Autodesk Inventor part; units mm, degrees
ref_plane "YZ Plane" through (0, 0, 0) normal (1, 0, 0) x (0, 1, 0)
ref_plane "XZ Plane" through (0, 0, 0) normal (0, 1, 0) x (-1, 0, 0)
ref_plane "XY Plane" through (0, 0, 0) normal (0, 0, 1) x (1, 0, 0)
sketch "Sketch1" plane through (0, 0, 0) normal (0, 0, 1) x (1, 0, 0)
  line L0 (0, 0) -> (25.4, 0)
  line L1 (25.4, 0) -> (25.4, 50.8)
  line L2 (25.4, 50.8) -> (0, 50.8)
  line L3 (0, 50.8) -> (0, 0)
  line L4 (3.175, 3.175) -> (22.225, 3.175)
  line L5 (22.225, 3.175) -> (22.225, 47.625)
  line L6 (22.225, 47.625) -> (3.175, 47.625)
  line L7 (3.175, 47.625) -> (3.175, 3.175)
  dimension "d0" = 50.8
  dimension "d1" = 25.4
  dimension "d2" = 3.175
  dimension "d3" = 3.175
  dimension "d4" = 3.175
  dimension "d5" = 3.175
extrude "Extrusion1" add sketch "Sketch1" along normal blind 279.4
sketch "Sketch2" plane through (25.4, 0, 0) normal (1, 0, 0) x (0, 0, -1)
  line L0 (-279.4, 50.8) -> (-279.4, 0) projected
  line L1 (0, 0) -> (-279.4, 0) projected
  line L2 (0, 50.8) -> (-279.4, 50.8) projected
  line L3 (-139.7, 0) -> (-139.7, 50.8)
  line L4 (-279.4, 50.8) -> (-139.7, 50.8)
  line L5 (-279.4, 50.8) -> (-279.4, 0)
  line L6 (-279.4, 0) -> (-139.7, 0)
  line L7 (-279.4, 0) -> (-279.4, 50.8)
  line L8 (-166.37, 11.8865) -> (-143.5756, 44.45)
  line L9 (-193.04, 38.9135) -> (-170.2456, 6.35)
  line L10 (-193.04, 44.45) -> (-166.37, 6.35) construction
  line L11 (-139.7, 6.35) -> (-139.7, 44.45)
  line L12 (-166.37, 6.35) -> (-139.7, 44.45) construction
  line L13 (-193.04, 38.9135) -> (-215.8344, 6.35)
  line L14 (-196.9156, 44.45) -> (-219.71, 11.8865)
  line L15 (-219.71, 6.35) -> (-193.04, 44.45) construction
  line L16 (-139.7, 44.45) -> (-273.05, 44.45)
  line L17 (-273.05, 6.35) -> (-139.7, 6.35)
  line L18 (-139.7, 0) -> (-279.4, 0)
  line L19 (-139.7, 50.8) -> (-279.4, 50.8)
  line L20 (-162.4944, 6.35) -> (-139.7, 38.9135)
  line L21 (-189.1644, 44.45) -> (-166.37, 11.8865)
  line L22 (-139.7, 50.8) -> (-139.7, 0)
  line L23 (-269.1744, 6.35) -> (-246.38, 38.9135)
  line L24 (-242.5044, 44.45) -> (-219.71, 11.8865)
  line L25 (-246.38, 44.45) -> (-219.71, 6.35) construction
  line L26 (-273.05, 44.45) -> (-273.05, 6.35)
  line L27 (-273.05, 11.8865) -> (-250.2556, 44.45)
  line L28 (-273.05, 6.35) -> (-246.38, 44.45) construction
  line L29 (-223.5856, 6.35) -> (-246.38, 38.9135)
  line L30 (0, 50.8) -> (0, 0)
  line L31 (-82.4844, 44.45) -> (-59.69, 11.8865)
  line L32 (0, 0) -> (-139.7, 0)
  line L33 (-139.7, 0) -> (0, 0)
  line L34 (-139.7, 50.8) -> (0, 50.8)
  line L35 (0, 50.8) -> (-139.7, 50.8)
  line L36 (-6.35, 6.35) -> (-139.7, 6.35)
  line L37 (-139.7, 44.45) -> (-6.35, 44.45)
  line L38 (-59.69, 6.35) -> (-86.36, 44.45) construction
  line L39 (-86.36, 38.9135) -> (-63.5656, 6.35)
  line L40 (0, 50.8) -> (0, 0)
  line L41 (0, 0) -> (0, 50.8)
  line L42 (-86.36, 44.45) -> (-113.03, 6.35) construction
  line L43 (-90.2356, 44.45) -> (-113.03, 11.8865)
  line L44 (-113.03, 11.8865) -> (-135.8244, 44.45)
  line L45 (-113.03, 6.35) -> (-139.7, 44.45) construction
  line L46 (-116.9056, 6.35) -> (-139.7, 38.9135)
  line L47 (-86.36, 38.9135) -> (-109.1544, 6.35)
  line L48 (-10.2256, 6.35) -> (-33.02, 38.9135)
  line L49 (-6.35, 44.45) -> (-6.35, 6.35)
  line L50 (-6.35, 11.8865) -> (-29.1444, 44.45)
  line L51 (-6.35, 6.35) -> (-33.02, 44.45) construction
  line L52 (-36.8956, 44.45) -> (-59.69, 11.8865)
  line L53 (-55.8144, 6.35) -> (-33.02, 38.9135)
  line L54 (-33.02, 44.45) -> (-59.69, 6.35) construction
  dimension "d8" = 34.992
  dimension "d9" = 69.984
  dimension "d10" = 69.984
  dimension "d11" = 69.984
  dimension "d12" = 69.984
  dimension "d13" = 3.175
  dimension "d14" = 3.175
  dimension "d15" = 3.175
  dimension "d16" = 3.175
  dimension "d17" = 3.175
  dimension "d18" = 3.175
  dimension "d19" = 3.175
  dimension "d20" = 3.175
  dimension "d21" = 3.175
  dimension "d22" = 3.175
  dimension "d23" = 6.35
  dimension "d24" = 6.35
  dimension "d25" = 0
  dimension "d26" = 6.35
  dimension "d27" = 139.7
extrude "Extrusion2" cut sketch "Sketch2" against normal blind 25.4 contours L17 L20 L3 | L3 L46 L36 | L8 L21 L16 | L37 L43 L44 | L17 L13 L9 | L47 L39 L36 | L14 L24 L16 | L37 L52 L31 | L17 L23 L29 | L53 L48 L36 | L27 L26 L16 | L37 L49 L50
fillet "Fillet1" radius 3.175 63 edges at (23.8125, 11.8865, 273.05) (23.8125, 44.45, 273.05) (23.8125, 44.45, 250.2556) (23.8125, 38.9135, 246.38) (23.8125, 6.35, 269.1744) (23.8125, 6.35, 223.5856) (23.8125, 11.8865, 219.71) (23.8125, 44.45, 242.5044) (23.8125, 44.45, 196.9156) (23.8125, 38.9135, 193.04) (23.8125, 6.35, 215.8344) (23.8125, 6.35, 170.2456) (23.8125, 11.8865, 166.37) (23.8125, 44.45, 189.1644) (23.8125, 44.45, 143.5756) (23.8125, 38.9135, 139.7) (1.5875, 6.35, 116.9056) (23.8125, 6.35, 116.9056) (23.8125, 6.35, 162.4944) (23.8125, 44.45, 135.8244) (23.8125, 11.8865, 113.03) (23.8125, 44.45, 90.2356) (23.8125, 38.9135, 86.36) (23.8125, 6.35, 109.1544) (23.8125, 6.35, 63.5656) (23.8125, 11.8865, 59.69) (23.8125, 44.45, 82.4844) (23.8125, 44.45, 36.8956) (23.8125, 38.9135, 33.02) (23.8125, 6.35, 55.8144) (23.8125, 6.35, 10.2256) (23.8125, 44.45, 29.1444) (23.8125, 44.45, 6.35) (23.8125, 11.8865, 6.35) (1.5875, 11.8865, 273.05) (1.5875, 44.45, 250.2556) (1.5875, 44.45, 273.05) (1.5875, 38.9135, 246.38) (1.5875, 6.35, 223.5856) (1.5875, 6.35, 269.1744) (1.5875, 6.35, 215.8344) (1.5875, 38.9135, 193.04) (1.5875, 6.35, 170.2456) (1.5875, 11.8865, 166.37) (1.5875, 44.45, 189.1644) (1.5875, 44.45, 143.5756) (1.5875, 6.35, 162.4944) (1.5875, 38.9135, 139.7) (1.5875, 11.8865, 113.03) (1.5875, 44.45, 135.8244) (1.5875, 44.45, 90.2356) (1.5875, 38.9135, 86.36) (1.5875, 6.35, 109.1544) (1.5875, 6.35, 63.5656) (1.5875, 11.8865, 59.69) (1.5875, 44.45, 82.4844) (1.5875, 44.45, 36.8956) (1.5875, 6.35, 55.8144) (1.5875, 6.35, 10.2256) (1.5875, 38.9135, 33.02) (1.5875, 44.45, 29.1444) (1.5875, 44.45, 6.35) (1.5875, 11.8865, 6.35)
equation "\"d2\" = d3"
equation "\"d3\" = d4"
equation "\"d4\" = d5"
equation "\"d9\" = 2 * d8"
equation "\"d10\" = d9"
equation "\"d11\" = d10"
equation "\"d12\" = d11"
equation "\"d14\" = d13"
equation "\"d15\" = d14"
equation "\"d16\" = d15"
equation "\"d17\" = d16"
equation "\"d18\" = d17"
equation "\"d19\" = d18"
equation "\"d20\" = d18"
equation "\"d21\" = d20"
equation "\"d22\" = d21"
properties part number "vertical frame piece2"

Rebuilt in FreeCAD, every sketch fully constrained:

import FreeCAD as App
import Part
import Sketcher
Q = App.Units.Quantity


def edges_at(feature, points):
    """Names of the edges that pass closest to the given points."""
    edges = feature.Shape.Edges
    near = lambda p: min(range(len(edges)), key=lambda i: edges[i].distToShape(Part.Vertex(*p))[0])
    return sorted({f"Edge{near(p) + 1}" for p in points})

doc = App.newDocument("Part")
body = doc.addObject("PartDesign::Body", "Body")

# Sketch on XY plane
sketch1 = body.newObject("Sketcher::SketchObject", "Sketch")
sketch1.AttachmentSupport = (doc.getObject("XY_Plane"), [""])
sketch1.MapMode = "FlatFace"
sketch1.addGeometry([
    Part.LineSegment(App.Vector(0, 51, 0), App.Vector(0, 0, 0)),  # 0
    Part.LineSegment(App.Vector(0, 0, 0), App.Vector(25, 0, 0)),  # 1
    Part.LineSegment(App.Vector(25, 0, 0), App.Vector(25, 51, 0)),  # 2
    Part.LineSegment(App.Vector(25, 51, 0), App.Vector(0, 51, 0)),  # 3
    Part.LineSegment(App.Vector(22, 3, 0), App.Vector(3, 3, 0)),  # 4
    Part.LineSegment(App.Vector(3, 3, 0), App.Vector(3, 48, 0)),  # 5
    Part.LineSegment(App.Vector(3, 48, 0), App.Vector(22, 48, 0)),  # 6
    Part.LineSegment(App.Vector(22, 48, 0), App.Vector(22, 3, 0)),  # 7
], False)
sketch1.addConstraint([
    Sketcher.Constraint("Coincident", 0, 2, 1, 1),
    Sketcher.Constraint("Coincident", 1, 2, 2, 1),
    Sketcher.Constraint("Coincident", 2, 2, 3, 1),
    Sketcher.Constraint("Coincident", 3, 2, 0, 1),
    Sketcher.Constraint("Coincident", 4, 2, 5, 1),
    Sketcher.Constraint("Coincident", 5, 2, 6, 1),
    Sketcher.Constraint("Coincident", 6, 2, 7, 1),
    Sketcher.Constraint("Coincident", 7, 2, 4, 1),
    Sketcher.Constraint("Vertical", 0),
    Sketcher.Constraint("Horizontal", 1),
    Sketcher.Constraint("Vertical", 2),
    Sketcher.Constraint("Horizontal", 3),
    Sketcher.Constraint("Horizontal", 4),
    Sketcher.Constraint("Vertical", 5),
    Sketcher.Constraint("Horizontal", 6),
    Sketcher.Constraint("Vertical", 7),
    Sketcher.Constraint("Coincident", 0, 2, -1, 1),
    Sketcher.Constraint("DistanceX", 1, 1, 1, 2, Q("1 in")),
    Sketcher.Constraint("DistanceY", 0, 2, 0, 1, Q("2 in")),
    Sketcher.Constraint("DistanceX", -1, 1, 4, 2, Q("0.125 in")),
    Sketcher.Constraint("DistanceY", -1, 1, 4, 2, Q("0.125 in")),
    Sketcher.Constraint("DistanceY", 5, 2, 3, 2, Q("0.125 in")),
    Sketcher.Constraint("DistanceX", 6, 2, 2, 2, Q("0.125 in")),
])
pad1 = body.newObject("PartDesign::Pad", "Pad")
pad1.Profile = sketch1
pad1.Length = Q("11 in")

# Sketch on YZ plane
sketch2 = body.newObject("Sketcher::SketchObject", "Sketch001")
sketch2.AttachmentSupport = (doc.getObject("YZ_Plane"), [""])
sketch2.MapMode = "FlatFace"
sketch2.AttachmentOffset = App.Placement(App.Vector(0, 0, 1 * 25.4), App.Rotation())
sketch2.addGeometry([
    Part.LineSegment(App.Vector(6, 162, 0), App.Vector(6, 117, 0)),  # 0
    Part.LineSegment(App.Vector(6, 117, 0), App.Vector(39, 140, 0)),  # 1
    Part.LineSegment(App.Vector(39, 140, 0), App.Vector(6, 162, 0)),  # 2
    Part.LineSegment(App.Vector(12, 166, 0), App.Vector(44, 144, 0)),  # 3
    Part.LineSegment(App.Vector(44, 144, 0), App.Vector(44, 189, 0)),  # 4
    Part.LineSegment(App.Vector(44, 189, 0), App.Vector(12, 166, 0)),  # 5
    Part.LineSegment(App.Vector(44, 90, 0), App.Vector(44, 136, 0)),  # 6
    Part.LineSegment(App.Vector(44, 136, 0), App.Vector(12, 113, 0)),  # 7
    Part.LineSegment(App.Vector(12, 113, 0), App.Vector(44, 90, 0)),  # 8
    Part.LineSegment(App.Vector(6, 216, 0), App.Vector(6, 170, 0)),  # 9
    Part.LineSegment(App.Vector(6, 170, 0), App.Vector(39, 193, 0)),  # 10
    Part.LineSegment(App.Vector(39, 193, 0), App.Vector(6, 216, 0)),  # 11
    Part.LineSegment(App.Vector(39, 86, 0), App.Vector(6, 109, 0)),  # 12
    Part.LineSegment(App.Vector(6, 109, 0), App.Vector(6, 64, 0)),  # 13
    Part.LineSegment(App.Vector(6, 64, 0), App.Vector(39, 86, 0)),  # 14
    Part.LineSegment(App.Vector(12, 220, 0), App.Vector(44, 197, 0)),  # 15
    Part.LineSegment(App.Vector(44, 197, 0), App.Vector(44, 243, 0)),  # 16
    Part.LineSegment(App.Vector(44, 243, 0), App.Vector(12, 220, 0)),  # 17
    Part.LineSegment(App.Vector(44, 37, 0), App.Vector(44, 82, 0)),  # 18
    Part.LineSegment(App.Vector(44, 82, 0), App.Vector(12, 60, 0)),  # 19
    Part.LineSegment(App.Vector(12, 60, 0), App.Vector(44, 37, 0)),  # 20
    Part.LineSegment(App.Vector(6, 269, 0), App.Vector(6, 224, 0)),  # 21
    Part.LineSegment(App.Vector(6, 224, 0), App.Vector(39, 246, 0)),  # 22
    Part.LineSegment(App.Vector(39, 246, 0), App.Vector(6, 269, 0)),  # 23
    Part.LineSegment(App.Vector(39, 33, 0), App.Vector(6, 56, 0)),  # 24
    Part.LineSegment(App.Vector(6, 56, 0), App.Vector(6, 10, 0)),  # 25
    Part.LineSegment(App.Vector(6, 10, 0), App.Vector(39, 33, 0)),  # 26
    Part.LineSegment(App.Vector(12, 273, 0), App.Vector(44, 250, 0)),  # 27
    Part.LineSegment(App.Vector(44, 250, 0), App.Vector(44, 273, 0)),  # 28
    Part.LineSegment(App.Vector(44, 273, 0), App.Vector(12, 273, 0)),  # 29
    Part.LineSegment(App.Vector(44, 6, 0), App.Vector(44, 29, 0)),  # 30
    Part.LineSegment(App.Vector(44, 29, 0), App.Vector(12, 6, 0)),  # 31
    Part.LineSegment(App.Vector(12, 6, 0), App.Vector(44, 6, 0)),  # 32
], False)
sketch2.addConstraint([
    Sketcher.Constraint("Coincident", 0, 2, 1, 1),
    Sketcher.Constraint("Coincident", 1, 2, 2, 1),
    Sketcher.Constraint("Coincident", 2, 2, 0, 1),
    Sketcher.Constraint("Coincident", 3, 2, 4, 1),
    Sketcher.Constraint("Coincident", 4, 2, 5, 1),
    Sketcher.Constraint("Coincident", 5, 2, 3, 1),
    Sketcher.Constraint("Coincident", 6, 2, 7, 1),
    Sketcher.Constraint("Coincident", 7, 2, 8, 1),
    Sketcher.Constraint("Coincident", 8, 2, 6, 1),
    Sketcher.Constraint("Coincident", 9, 2, 10, 1),
    Sketcher.Constraint("Coincident", 10, 2, 11, 1),
    Sketcher.Constraint("Coincident", 11, 2, 9, 1),
    Sketcher.Constraint("Coincident", 12, 2, 13, 1),
    Sketcher.Constraint("Coincident", 13, 2, 14, 1),
    Sketcher.Constraint("Coincident", 14, 2, 12, 1),
    Sketcher.Constraint("Coincident", 15, 2, 16, 1),
    Sketcher.Constraint("Coincident", 16, 2, 17, 1),
    Sketcher.Constraint("Coincident", 17, 2, 15, 1),
    Sketcher.Constraint("Coincident", 18, 2, 19, 1),
    Sketcher.Constraint("Coincident", 19, 2, 20, 1),
    Sketcher.Constraint("Coincident", 20, 2, 18, 1),
    Sketcher.Constraint("Coincident", 21, 2, 22, 1),
    Sketcher.Constraint("Coincident", 22, 2, 23, 1),
    Sketcher.Constraint("Coincident", 23, 2, 21, 1),
    Sketcher.Constraint("Coincident", 24, 2, 25, 1),
    Sketcher.Constraint("Coincident", 25, 2, 26, 1),
    Sketcher.Constraint("Coincident", 26, 2, 24, 1),
    Sketcher.Constraint("Coincident", 27, 2, 28, 1),
    Sketcher.Constraint("Coincident", 28, 2, 29, 1),
    Sketcher.Constraint("Coincident", 29, 2, 27, 1),
    Sketcher.Constraint("Coincident", 30, 2, 31, 1),
    Sketcher.Constraint("Coincident", 31, 2, 32, 1),
    Sketcher.Constraint("Coincident", 32, 2, 30, 1),
    Sketcher.Constraint("Vertical", 0),
    Sketcher.Constraint("Vertical", 4),
    Sketcher.Constraint("Vertical", 6),
    Sketcher.Constraint("Vertical", 9),
    Sketcher.Constraint("Vertical", 13),
    Sketcher.Constraint("Vertical", 16),
    Sketcher.Constraint("Vertical", 18),
    Sketcher.Constraint("Vertical", 21),
    Sketcher.Constraint("Vertical", 25),
    Sketcher.Constraint("Vertical", 28),
    Sketcher.Constraint("Horizontal", 29),
    Sketcher.Constraint("Vertical", 30),
    Sketcher.Constraint("Horizontal", 32),
    Sketcher.Constraint("Parallel", 2, 3),
    Sketcher.Constraint("Parallel", 1, 5),
    Sketcher.Constraint("Parallel", 5, 7),
    Sketcher.Constraint("Parallel", 3, 8),
    Sketcher.Constraint("Parallel", 7, 10),
    Sketcher.Constraint("Parallel", 8, 11),
    Sketcher.Constraint("Parallel", 11, 12),
    Sketcher.Constraint("Parallel", 10, 14),
    Sketcher.Constraint("Parallel", 12, 15),
    Sketcher.Constraint("Parallel", 14, 17),
    Sketcher.Constraint("Parallel", 17, 19),
    Sketcher.Constraint("Parallel", 15, 20),
    Sketcher.Constraint("Parallel", 19, 22),
    Sketcher.Constraint("Parallel", 20, 23),
    Sketcher.Constraint("Parallel", 23, 24),
    Sketcher.Constraint("Parallel", 22, 26),
    Sketcher.Constraint("Parallel", 24, 27),
    Sketcher.Constraint("Parallel", 26, 31),
    Sketcher.Constraint("Vertical", 4, 2, 6, 2),
    Sketcher.Constraint("Vertical", 5, 2, 7, 2),
    Sketcher.Constraint("Vertical", 2, 2, 9, 2),
    Sketcher.Constraint("Vertical", 1, 2, 10, 2),
    Sketcher.Constraint("Vertical", 11, 2, 12, 2),
    Sketcher.Constraint("Vertical", 10, 2, 14, 2),
    Sketcher.Constraint("Vertical", 8, 2, 15, 2),
    Sketcher.Constraint("Vertical", 7, 2, 17, 2),
    Sketcher.Constraint("Vertical", 16, 2, 18, 2),
    Sketcher.Constraint("Vertical", 17, 2, 19, 2),
    Sketcher.Constraint("Vertical", 13, 2, 21, 2),
    Sketcher.Constraint("Vertical", 14, 2, 22, 2),
    Sketcher.Constraint("Vertical", 23, 2, 24, 2),
    Sketcher.Constraint("Vertical", 22, 2, 26, 2),
    Sketcher.Constraint("Vertical", 20, 2, 27, 2),
    Sketcher.Constraint("Vertical", 19, 2, 29, 2),
    Sketcher.Constraint("Vertical", 28, 2, 30, 2),
    Sketcher.Constraint("Vertical", 29, 2, 31, 2),
    Sketcher.Constraint("Equal", 0, 4),
    Sketcher.Constraint("Equal", 28, 30),
    Sketcher.Constraint("DistanceY", -1, 1, 1, 2, Q("5.5 in")),
    Sketcher.Constraint("DistanceX", -1, 1, 0, 2, Q("0.25 in")),
    Sketcher.Constraint("DistanceY", -1, 1, 31, 2, Q("0.25 in")),
    Sketcher.Constraint("DistanceY", -1, 1, 10, 2, Q("7.6 in")),
    Sketcher.Constraint("DistanceY", -1, 1, 14, 2, Q("3.4 in")),
    Sketcher.Constraint("DistanceY", -1, 1, 22, 2, Q("9.7 in")),
    Sketcher.Constraint("DistanceY", -1, 1, 26, 2, Q("1.3 in")),
    Sketcher.Constraint("DistanceX", 2, 2, 3, 2, Q("1.5 in")),
    Sketcher.Constraint("DistanceY", 8, 2, 3, 2, Q("2.1 in")),
    Sketcher.Constraint("DistanceY", 4, 2, 16, 2, Q("2.1 in")),
    Sketcher.Constraint("DistanceY", 20, 2, 8, 2, Q("2.1 in")),
    Sketcher.Constraint("DistanceY", -1, 1, 5, 2, Q("6.55 in")),
    Sketcher.Constraint("DistanceY", -1, 1, 28, 2, Q("10.75 in")),
    Sketcher.Constraint("DistanceX", 29, 2, 29, 1, Q("32.5635 mm")),
    Sketcher.Constraint("DistanceY", 0, 2, 0, 1, Q("45.5888 mm")),
])
pocket1 = body.newObject("PartDesign::Pocket", "Pocket")
pocket1.Profile = sketch2
pocket1.Length = Q("1 in")
doc.recompute()

fillet = body.newObject("PartDesign::Fillet", "Fillet")
fillet.Base = (pocket1, edges_at(pocket1, [
    (23.812, 11.886, 273.05),
    (23.812, 44.45, 273.05),
    (23.812, 44.45, 250.256),
    (23.812, 38.913, 246.38),
    (23.812, 6.35, 269.174),
    (23.812, 6.35, 223.586),
    (23.812, 11.886, 219.71),
    (23.812, 44.45, 242.504),
    (23.812, 44.45, 196.916),
    (23.812, 38.913, 193.04),
    (23.812, 6.35, 215.834),
    (23.812, 6.35, 170.246),
    (23.812, 11.886, 166.37),
    (23.812, 44.45, 189.164),
    (23.812, 44.45, 143.576),
    (23.812, 38.913, 139.7),
    (1.587, 6.35, 116.906),
    (23.812, 6.35, 116.906),
    (23.812, 6.35, 162.494),
    (23.812, 44.45, 135.824),
    (23.812, 11.886, 113.03),
    (23.812, 44.45, 90.236),
    (23.812, 38.913, 86.36),
    (23.812, 6.35, 109.154),
    (23.812, 6.35, 63.566),
    (23.812, 11.886, 59.69),
    (23.812, 44.45, 82.484),
    (23.812, 44.45, 36.896),
    (23.812, 38.913, 33.02),
    (23.812, 6.35, 55.814),
    (23.812, 6.35, 10.226),
    (23.812, 44.45, 29.144),
    (23.812, 44.45, 6.35),
    (23.812, 11.886, 6.35),
    (1.587, 11.886, 273.05),
    (1.587, 44.45, 250.256),
    (1.587, 44.45, 273.05),
    (1.587, 38.913, 246.38),
    (1.587, 6.35, 223.586),
    (1.587, 6.35, 269.174),
    (1.587, 6.35, 215.834),
    (1.587, 38.913, 193.04),
    (1.587, 6.35, 170.246),
    (1.587, 11.886, 166.37),
    (1.587, 44.45, 189.164),
    (1.587, 44.45, 143.576),
    (1.587, 6.35, 162.494),
    (1.587, 38.913, 139.7),
    (1.587, 11.886, 113.03),
    (1.587, 44.45, 135.824),
    (1.587, 44.45, 90.236),
    (1.587, 38.913, 86.36),
    (1.587, 6.35, 109.154),
    (1.587, 6.35, 63.566),
    (1.587, 11.886, 59.69),
    (1.587, 44.45, 82.484),
    (1.587, 44.45, 36.896),
    (1.587, 6.35, 55.814),
    (1.587, 6.35, 10.226),
    (1.587, 38.913, 33.02),
    (1.587, 44.45, 29.144),
    (1.587, 44.45, 6.35),
    (1.587, 11.886, 6.35),
]))
fillet.Radius = Q("0.125 in")

doc.recompute()
